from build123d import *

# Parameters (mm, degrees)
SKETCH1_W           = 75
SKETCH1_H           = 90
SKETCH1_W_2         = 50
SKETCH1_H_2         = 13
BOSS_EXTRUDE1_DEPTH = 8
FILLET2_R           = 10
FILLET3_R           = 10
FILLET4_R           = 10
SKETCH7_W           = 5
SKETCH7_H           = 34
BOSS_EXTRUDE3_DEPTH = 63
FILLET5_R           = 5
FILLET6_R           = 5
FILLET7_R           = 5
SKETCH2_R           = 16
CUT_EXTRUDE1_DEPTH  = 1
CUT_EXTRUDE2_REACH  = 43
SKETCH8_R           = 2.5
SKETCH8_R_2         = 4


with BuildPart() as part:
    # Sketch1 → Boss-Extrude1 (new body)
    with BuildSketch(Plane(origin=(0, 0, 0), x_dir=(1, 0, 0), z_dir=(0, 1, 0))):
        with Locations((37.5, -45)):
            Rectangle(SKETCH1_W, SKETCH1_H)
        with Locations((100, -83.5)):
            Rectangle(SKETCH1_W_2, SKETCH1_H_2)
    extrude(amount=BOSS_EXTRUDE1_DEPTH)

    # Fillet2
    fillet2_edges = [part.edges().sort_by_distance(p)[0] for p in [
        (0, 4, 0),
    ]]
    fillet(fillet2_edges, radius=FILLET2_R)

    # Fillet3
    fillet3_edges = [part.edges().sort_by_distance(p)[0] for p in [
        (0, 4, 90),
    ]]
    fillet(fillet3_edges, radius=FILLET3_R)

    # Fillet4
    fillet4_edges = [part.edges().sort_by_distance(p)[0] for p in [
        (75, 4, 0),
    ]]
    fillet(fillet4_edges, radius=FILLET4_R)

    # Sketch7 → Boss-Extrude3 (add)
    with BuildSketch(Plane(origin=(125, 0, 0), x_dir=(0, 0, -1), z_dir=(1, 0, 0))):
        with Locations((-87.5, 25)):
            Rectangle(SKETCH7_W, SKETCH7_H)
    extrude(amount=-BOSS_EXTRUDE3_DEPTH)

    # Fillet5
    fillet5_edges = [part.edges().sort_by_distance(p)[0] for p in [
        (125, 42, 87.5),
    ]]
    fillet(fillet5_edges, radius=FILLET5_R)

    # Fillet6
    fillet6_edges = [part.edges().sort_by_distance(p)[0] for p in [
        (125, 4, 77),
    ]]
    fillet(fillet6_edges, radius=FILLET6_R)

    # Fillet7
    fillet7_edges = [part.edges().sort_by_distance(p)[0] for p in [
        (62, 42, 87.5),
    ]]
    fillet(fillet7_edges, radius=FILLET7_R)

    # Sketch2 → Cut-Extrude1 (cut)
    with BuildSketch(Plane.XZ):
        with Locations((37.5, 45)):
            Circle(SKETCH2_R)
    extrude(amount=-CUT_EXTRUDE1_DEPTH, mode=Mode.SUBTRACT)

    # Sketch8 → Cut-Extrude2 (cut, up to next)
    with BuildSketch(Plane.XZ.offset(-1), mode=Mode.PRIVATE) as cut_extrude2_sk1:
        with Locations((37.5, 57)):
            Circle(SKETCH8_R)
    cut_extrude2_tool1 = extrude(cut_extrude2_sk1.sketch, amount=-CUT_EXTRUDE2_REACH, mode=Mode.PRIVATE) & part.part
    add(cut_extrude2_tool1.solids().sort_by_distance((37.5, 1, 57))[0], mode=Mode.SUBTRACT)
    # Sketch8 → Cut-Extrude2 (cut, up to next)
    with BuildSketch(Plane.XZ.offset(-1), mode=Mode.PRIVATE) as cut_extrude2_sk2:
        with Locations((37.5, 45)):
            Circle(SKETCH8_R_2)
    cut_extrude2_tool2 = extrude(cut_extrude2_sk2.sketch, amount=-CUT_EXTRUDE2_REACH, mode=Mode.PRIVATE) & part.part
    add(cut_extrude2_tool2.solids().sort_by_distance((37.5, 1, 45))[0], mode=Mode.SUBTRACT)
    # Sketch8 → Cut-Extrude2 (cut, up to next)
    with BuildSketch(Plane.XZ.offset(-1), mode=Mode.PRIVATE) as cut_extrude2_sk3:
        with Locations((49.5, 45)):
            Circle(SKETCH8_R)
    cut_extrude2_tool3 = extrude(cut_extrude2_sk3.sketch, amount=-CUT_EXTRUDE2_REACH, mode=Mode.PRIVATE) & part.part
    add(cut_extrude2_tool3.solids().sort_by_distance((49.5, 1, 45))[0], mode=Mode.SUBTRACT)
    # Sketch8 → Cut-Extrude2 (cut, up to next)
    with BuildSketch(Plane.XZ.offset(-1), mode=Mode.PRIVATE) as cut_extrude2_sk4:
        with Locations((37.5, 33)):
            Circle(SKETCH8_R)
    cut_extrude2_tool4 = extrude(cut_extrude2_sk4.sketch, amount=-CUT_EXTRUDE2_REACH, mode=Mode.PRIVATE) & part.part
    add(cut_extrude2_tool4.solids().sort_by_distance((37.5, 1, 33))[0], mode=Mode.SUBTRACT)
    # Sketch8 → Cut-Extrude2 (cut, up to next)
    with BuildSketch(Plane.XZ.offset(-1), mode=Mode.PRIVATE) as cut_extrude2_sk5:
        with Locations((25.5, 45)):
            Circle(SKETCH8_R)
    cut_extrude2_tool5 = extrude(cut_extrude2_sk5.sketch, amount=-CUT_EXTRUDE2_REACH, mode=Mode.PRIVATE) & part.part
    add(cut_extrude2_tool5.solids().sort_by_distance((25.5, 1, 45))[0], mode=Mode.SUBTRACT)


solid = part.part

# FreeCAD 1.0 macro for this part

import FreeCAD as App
import Part
import Sketcher
from FreeCAD import Vector


def edges_at(feature, points):
    """Names of the edges that pass closest to the given points."""
    edges = feature.Shape.Edges
    near = lambda p: min(range(len(edges)), key=lambda i: edges[i].distToShape(Part.Vertex(*p))[0])
    return sorted({f"Edge{near(p) + 1}" for p in points})


def add_polygon(sketch, points):
    """Adds a closed chain of lines whose ends are joined by coincident constraints."""
    first, n = sketch.GeometryCount, len(points)
    for a, b in zip(points, points[1:] + points[:1]):
        sketch.addGeometry(Part.LineSegment(App.Vector(*a, 0), App.Vector(*b, 0)), False)
    for i in range(n):
        sketch.addConstraint(Sketcher.Constraint("Coincident", first + i, 2, first + (i + 1) % n, 1))

doc = App.newDocument("Part")
body = doc.addObject("PartDesign::Body", "Body")

sketch1 = doc.addObject("Sketcher::SketchObject", "Sketch")
body.addObject(sketch1)
sketch1.AttachmentSupport = (doc.XZ_Plane, [""])
sketch1.MapMode = "FlatFace"
add_polygon(sketch1, [(0, 0), (0, 90), (125, 90), (125, 77), (75, 77), (75, 0)])
sketch1.addConstraint(Sketcher.Constraint("Vertical", 0))
sketch1.addConstraint(Sketcher.Constraint("Horizontal", 1))
sketch1.addConstraint(Sketcher.Constraint("Vertical", 2))
sketch1.addConstraint(Sketcher.Constraint("Horizontal", 3))
sketch1.addConstraint(Sketcher.Constraint("Vertical", 4))
sketch1.addConstraint(Sketcher.Constraint("Horizontal", 5))
sketch1.addConstraint(Sketcher.Constraint("Coincident", 5, 2, -1, 1))
sketch1.addConstraint(Sketcher.Constraint("DistanceX", 1, 1, 1, 2, 125.0))
sketch1.addConstraint(Sketcher.Constraint("DistanceX", 3, 2, 3, 1, 50.0))
sketch1.addConstraint(Sketcher.Constraint("DistanceY", 0, 1, 0, 2, 90.0))
sketch1.addConstraint(Sketcher.Constraint("DistanceY", 2, 2, 2, 1, 13.0))
pad1 = doc.addObject("PartDesign::Pad", "Pad")
body.addObject(pad1)
pad1.Profile = sketch1
pad1.Length = 8
pad1.Reversed = True
doc.recompute()

fillet = doc.addObject("PartDesign::Fillet", "Fillet")
body.addObject(fillet)
fillet.Base = (pad1, edges_at(pad1, [(0, 4, 0)]))
fillet.Radius = 10
doc.recompute()

fillet2 = doc.addObject("PartDesign::Fillet", "Fillet001")
body.addObject(fillet2)
fillet2.Base = (fillet, edges_at(fillet, [(0, 4, 90)]))
fillet2.Radius = 10
doc.recompute()

fillet3 = doc.addObject("PartDesign::Fillet", "Fillet002")
body.addObject(fillet3)
fillet3.Base = (fillet2, edges_at(fillet2, [(75, 4, 0)]))
fillet3.Radius = 10

sketch2 = doc.addObject("Sketcher::SketchObject", "Sketch001")
body.addObject(sketch2)
sketch2.AttachmentSupport = (doc.YZ_Plane, [""])
sketch2.MapMode = "FlatFace"
sketch2.AttachmentOffset = App.Placement(Vector(0, 0, 125), App.Rotation())
add_polygon(sketch2, [(42, 90), (8, 90), (8, 85), (42, 85)])
sketch2.addConstraint(Sketcher.Constraint("Horizontal", 0))
sketch2.addConstraint(Sketcher.Constraint("Vertical", 1))
sketch2.addConstraint(Sketcher.Constraint("Horizontal", 2))
sketch2.addConstraint(Sketcher.Constraint("Vertical", 3))
sketch2.addConstraint(Sketcher.Constraint("DistanceX", 0, 2, 0, 1, 34.0))
sketch2.addConstraint(Sketcher.Constraint("DistanceY", 1, 2, 1, 1, 5.0))
sketch2.addConstraint(Sketcher.Constraint("DistanceX", -1, 1, 0, 2, 8.0))
sketch2.addConstraint(Sketcher.Constraint("DistanceY", -1, 1, 0, 2, 90.0))
pad2 = doc.addObject("PartDesign::Pad", "Pad001")
body.addObject(pad2)
pad2.Profile = sketch2
pad2.Length = 63
pad2.Reversed = True
doc.recompute()

fillet4 = doc.addObject("PartDesign::Fillet", "Fillet003")
body.addObject(fillet4)
fillet4.Base = (pad2, edges_at(pad2, [(125, 42, 87.5)]))
fillet4.Radius = 5
doc.recompute()

fillet5 = doc.addObject("PartDesign::Fillet", "Fillet004")
body.addObject(fillet5)
fillet5.Base = (fillet4, edges_at(fillet4, [(125, 4, 77)]))
fillet5.Radius = 5
doc.recompute()

fillet6 = doc.addObject("PartDesign::Fillet", "Fillet005")
body.addObject(fillet6)
fillet6.Base = (fillet5, edges_at(fillet5, [(62, 42, 87.5)]))
fillet6.Radius = 5

sketch3 = doc.addObject("Sketcher::SketchObject", "Sketch002")
body.addObject(sketch3)
sketch3.AttachmentSupport = (doc.XZ_Plane, [""])
sketch3.MapMode = "FlatFace"
sketch3.addGeometry(Part.Circle(Vector(37.5, 45, 0), Vector(0, 0, 1), 16), False)
sketch3.addConstraint(Sketcher.Constraint("Diameter", 0, 32.0))
sketch3.addConstraint(Sketcher.Constraint("DistanceY", -1, 1, 0, 3, 45.0))
sketch3.addConstraint(Sketcher.Constraint("DistanceX", -1, 1, 0, 3, 37.5))
pocket1 = doc.addObject("PartDesign::Pocket", "Pocket")
body.addObject(pocket1)
pocket1.Profile = sketch3
pocket1.Length = 1

sketch4 = doc.addObject("Sketcher::SketchObject", "Sketch003")
body.addObject(sketch4)
sketch4.AttachmentSupport = (doc.XZ_Plane, [""])
sketch4.MapMode = "FlatFace"
sketch4.AttachmentOffset = App.Placement(Vector(0, 0, -1), App.Rotation())
sketch4.addGeometry(Part.Circle(Vector(37.5, 57, 0), Vector(0, 0, 1), 2.5), False)
sketch4.addConstraint(Sketcher.Constraint("Diameter", 0, 5.0))
sketch4.addConstraint(Sketcher.Constraint("DistanceY", -1, 1, 0, 3, 57.0))
sketch4.addConstraint(Sketcher.Constraint("DistanceX", -1, 1, 0, 3, 37.5))
pocket2 = doc.addObject("PartDesign::Pocket", "Pocket001")
body.addObject(pocket2)
pocket2.Profile = sketch4
pocket2.Type = "UpToFirst"

sketch5 = doc.addObject("Sketcher::SketchObject", "Sketch004")
body.addObject(sketch5)
sketch5.AttachmentSupport = (doc.XZ_Plane, [""])
sketch5.MapMode = "FlatFace"
sketch5.AttachmentOffset = App.Placement(Vector(0, 0, -1), App.Rotation())
sketch5.addGeometry(Part.Circle(Vector(37.5, 45, 0), Vector(0, 0, 1), 4), False)
sketch5.addConstraint(Sketcher.Constraint("Diameter", 0, 8.0))
sketch5.addConstraint(Sketcher.Constraint("DistanceY", -1, 1, 0, 3, 45.0))
sketch5.addConstraint(Sketcher.Constraint("DistanceX", -1, 1, 0, 3, 37.5))
pocket3 = doc.addObject("PartDesign::Pocket", "Pocket002")
body.addObject(pocket3)
pocket3.Profile = sketch5
pocket3.Type = "UpToFirst"

sketch6 = doc.addObject("Sketcher::SketchObject", "Sketch005")
body.addObject(sketch6)
sketch6.AttachmentSupport = (doc.XZ_Plane, [""])
sketch6.MapMode = "FlatFace"
sketch6.AttachmentOffset = App.Placement(Vector(0, 0, -1), App.Rotation())
sketch6.addGeometry(Part.Circle(Vector(49.5, 45, 0), Vector(0, 0, 1), 2.5), False)
sketch6.addConstraint(Sketcher.Constraint("Diameter", 0, 5.0))
sketch6.addConstraint(Sketcher.Constraint("DistanceY", -1, 1, 0, 3, 45.0))
sketch6.addConstraint(Sketcher.Constraint("DistanceX", -1, 1, 0, 3, 49.5))
pocket4 = doc.addObject("PartDesign::Pocket", "Pocket003")
body.addObject(pocket4)
pocket4.Profile = sketch6
pocket4.Type = "UpToFirst"

sketch7 = doc.addObject("Sketcher::SketchObject", "Sketch006")
body.addObject(sketch7)
sketch7.AttachmentSupport = (doc.XZ_Plane, [""])
sketch7.MapMode = "FlatFace"
sketch7.AttachmentOffset = App.Placement(Vector(0, 0, -1), App.Rotation())
sketch7.addGeometry(Part.Circle(Vector(37.5, 33, 0), Vector(0, 0, 1), 2.5), False)
sketch7.addConstraint(Sketcher.Constraint("Diameter", 0, 5.0))
sketch7.addConstraint(Sketcher.Constraint("DistanceY", -1, 1, 0, 3, 33.0))
sketch7.addConstraint(Sketcher.Constraint("DistanceX", -1, 1, 0, 3, 37.5))
pocket5 = doc.addObject("PartDesign::Pocket", "Pocket004")
body.addObject(pocket5)
pocket5.Profile = sketch7
pocket5.Type = "UpToFirst"

sketch8 = doc.addObject("Sketcher::SketchObject", "Sketch007")
body.addObject(sketch8)
sketch8.AttachmentSupport = (doc.XZ_Plane, [""])
sketch8.MapMode = "FlatFace"
sketch8.AttachmentOffset = App.Placement(Vector(0, 0, -1), App.Rotation())
sketch8.addGeometry(Part.Circle(Vector(25.5, 45, 0), Vector(0, 0, 1), 2.5), False)
sketch8.addConstraint(Sketcher.Constraint("Diameter", 0, 5.0))
sketch8.addConstraint(Sketcher.Constraint("DistanceY", -1, 1, 0, 3, 45.0))
sketch8.addConstraint(Sketcher.Constraint("DistanceX", -1, 1, 0, 3, 25.5))
pocket6 = doc.addObject("PartDesign::Pocket", "Pocket005")
body.addObject(pocket6)
pocket6.Profile = sketch8
pocket6.Type = "UpToFirst"

doc.recompute()
